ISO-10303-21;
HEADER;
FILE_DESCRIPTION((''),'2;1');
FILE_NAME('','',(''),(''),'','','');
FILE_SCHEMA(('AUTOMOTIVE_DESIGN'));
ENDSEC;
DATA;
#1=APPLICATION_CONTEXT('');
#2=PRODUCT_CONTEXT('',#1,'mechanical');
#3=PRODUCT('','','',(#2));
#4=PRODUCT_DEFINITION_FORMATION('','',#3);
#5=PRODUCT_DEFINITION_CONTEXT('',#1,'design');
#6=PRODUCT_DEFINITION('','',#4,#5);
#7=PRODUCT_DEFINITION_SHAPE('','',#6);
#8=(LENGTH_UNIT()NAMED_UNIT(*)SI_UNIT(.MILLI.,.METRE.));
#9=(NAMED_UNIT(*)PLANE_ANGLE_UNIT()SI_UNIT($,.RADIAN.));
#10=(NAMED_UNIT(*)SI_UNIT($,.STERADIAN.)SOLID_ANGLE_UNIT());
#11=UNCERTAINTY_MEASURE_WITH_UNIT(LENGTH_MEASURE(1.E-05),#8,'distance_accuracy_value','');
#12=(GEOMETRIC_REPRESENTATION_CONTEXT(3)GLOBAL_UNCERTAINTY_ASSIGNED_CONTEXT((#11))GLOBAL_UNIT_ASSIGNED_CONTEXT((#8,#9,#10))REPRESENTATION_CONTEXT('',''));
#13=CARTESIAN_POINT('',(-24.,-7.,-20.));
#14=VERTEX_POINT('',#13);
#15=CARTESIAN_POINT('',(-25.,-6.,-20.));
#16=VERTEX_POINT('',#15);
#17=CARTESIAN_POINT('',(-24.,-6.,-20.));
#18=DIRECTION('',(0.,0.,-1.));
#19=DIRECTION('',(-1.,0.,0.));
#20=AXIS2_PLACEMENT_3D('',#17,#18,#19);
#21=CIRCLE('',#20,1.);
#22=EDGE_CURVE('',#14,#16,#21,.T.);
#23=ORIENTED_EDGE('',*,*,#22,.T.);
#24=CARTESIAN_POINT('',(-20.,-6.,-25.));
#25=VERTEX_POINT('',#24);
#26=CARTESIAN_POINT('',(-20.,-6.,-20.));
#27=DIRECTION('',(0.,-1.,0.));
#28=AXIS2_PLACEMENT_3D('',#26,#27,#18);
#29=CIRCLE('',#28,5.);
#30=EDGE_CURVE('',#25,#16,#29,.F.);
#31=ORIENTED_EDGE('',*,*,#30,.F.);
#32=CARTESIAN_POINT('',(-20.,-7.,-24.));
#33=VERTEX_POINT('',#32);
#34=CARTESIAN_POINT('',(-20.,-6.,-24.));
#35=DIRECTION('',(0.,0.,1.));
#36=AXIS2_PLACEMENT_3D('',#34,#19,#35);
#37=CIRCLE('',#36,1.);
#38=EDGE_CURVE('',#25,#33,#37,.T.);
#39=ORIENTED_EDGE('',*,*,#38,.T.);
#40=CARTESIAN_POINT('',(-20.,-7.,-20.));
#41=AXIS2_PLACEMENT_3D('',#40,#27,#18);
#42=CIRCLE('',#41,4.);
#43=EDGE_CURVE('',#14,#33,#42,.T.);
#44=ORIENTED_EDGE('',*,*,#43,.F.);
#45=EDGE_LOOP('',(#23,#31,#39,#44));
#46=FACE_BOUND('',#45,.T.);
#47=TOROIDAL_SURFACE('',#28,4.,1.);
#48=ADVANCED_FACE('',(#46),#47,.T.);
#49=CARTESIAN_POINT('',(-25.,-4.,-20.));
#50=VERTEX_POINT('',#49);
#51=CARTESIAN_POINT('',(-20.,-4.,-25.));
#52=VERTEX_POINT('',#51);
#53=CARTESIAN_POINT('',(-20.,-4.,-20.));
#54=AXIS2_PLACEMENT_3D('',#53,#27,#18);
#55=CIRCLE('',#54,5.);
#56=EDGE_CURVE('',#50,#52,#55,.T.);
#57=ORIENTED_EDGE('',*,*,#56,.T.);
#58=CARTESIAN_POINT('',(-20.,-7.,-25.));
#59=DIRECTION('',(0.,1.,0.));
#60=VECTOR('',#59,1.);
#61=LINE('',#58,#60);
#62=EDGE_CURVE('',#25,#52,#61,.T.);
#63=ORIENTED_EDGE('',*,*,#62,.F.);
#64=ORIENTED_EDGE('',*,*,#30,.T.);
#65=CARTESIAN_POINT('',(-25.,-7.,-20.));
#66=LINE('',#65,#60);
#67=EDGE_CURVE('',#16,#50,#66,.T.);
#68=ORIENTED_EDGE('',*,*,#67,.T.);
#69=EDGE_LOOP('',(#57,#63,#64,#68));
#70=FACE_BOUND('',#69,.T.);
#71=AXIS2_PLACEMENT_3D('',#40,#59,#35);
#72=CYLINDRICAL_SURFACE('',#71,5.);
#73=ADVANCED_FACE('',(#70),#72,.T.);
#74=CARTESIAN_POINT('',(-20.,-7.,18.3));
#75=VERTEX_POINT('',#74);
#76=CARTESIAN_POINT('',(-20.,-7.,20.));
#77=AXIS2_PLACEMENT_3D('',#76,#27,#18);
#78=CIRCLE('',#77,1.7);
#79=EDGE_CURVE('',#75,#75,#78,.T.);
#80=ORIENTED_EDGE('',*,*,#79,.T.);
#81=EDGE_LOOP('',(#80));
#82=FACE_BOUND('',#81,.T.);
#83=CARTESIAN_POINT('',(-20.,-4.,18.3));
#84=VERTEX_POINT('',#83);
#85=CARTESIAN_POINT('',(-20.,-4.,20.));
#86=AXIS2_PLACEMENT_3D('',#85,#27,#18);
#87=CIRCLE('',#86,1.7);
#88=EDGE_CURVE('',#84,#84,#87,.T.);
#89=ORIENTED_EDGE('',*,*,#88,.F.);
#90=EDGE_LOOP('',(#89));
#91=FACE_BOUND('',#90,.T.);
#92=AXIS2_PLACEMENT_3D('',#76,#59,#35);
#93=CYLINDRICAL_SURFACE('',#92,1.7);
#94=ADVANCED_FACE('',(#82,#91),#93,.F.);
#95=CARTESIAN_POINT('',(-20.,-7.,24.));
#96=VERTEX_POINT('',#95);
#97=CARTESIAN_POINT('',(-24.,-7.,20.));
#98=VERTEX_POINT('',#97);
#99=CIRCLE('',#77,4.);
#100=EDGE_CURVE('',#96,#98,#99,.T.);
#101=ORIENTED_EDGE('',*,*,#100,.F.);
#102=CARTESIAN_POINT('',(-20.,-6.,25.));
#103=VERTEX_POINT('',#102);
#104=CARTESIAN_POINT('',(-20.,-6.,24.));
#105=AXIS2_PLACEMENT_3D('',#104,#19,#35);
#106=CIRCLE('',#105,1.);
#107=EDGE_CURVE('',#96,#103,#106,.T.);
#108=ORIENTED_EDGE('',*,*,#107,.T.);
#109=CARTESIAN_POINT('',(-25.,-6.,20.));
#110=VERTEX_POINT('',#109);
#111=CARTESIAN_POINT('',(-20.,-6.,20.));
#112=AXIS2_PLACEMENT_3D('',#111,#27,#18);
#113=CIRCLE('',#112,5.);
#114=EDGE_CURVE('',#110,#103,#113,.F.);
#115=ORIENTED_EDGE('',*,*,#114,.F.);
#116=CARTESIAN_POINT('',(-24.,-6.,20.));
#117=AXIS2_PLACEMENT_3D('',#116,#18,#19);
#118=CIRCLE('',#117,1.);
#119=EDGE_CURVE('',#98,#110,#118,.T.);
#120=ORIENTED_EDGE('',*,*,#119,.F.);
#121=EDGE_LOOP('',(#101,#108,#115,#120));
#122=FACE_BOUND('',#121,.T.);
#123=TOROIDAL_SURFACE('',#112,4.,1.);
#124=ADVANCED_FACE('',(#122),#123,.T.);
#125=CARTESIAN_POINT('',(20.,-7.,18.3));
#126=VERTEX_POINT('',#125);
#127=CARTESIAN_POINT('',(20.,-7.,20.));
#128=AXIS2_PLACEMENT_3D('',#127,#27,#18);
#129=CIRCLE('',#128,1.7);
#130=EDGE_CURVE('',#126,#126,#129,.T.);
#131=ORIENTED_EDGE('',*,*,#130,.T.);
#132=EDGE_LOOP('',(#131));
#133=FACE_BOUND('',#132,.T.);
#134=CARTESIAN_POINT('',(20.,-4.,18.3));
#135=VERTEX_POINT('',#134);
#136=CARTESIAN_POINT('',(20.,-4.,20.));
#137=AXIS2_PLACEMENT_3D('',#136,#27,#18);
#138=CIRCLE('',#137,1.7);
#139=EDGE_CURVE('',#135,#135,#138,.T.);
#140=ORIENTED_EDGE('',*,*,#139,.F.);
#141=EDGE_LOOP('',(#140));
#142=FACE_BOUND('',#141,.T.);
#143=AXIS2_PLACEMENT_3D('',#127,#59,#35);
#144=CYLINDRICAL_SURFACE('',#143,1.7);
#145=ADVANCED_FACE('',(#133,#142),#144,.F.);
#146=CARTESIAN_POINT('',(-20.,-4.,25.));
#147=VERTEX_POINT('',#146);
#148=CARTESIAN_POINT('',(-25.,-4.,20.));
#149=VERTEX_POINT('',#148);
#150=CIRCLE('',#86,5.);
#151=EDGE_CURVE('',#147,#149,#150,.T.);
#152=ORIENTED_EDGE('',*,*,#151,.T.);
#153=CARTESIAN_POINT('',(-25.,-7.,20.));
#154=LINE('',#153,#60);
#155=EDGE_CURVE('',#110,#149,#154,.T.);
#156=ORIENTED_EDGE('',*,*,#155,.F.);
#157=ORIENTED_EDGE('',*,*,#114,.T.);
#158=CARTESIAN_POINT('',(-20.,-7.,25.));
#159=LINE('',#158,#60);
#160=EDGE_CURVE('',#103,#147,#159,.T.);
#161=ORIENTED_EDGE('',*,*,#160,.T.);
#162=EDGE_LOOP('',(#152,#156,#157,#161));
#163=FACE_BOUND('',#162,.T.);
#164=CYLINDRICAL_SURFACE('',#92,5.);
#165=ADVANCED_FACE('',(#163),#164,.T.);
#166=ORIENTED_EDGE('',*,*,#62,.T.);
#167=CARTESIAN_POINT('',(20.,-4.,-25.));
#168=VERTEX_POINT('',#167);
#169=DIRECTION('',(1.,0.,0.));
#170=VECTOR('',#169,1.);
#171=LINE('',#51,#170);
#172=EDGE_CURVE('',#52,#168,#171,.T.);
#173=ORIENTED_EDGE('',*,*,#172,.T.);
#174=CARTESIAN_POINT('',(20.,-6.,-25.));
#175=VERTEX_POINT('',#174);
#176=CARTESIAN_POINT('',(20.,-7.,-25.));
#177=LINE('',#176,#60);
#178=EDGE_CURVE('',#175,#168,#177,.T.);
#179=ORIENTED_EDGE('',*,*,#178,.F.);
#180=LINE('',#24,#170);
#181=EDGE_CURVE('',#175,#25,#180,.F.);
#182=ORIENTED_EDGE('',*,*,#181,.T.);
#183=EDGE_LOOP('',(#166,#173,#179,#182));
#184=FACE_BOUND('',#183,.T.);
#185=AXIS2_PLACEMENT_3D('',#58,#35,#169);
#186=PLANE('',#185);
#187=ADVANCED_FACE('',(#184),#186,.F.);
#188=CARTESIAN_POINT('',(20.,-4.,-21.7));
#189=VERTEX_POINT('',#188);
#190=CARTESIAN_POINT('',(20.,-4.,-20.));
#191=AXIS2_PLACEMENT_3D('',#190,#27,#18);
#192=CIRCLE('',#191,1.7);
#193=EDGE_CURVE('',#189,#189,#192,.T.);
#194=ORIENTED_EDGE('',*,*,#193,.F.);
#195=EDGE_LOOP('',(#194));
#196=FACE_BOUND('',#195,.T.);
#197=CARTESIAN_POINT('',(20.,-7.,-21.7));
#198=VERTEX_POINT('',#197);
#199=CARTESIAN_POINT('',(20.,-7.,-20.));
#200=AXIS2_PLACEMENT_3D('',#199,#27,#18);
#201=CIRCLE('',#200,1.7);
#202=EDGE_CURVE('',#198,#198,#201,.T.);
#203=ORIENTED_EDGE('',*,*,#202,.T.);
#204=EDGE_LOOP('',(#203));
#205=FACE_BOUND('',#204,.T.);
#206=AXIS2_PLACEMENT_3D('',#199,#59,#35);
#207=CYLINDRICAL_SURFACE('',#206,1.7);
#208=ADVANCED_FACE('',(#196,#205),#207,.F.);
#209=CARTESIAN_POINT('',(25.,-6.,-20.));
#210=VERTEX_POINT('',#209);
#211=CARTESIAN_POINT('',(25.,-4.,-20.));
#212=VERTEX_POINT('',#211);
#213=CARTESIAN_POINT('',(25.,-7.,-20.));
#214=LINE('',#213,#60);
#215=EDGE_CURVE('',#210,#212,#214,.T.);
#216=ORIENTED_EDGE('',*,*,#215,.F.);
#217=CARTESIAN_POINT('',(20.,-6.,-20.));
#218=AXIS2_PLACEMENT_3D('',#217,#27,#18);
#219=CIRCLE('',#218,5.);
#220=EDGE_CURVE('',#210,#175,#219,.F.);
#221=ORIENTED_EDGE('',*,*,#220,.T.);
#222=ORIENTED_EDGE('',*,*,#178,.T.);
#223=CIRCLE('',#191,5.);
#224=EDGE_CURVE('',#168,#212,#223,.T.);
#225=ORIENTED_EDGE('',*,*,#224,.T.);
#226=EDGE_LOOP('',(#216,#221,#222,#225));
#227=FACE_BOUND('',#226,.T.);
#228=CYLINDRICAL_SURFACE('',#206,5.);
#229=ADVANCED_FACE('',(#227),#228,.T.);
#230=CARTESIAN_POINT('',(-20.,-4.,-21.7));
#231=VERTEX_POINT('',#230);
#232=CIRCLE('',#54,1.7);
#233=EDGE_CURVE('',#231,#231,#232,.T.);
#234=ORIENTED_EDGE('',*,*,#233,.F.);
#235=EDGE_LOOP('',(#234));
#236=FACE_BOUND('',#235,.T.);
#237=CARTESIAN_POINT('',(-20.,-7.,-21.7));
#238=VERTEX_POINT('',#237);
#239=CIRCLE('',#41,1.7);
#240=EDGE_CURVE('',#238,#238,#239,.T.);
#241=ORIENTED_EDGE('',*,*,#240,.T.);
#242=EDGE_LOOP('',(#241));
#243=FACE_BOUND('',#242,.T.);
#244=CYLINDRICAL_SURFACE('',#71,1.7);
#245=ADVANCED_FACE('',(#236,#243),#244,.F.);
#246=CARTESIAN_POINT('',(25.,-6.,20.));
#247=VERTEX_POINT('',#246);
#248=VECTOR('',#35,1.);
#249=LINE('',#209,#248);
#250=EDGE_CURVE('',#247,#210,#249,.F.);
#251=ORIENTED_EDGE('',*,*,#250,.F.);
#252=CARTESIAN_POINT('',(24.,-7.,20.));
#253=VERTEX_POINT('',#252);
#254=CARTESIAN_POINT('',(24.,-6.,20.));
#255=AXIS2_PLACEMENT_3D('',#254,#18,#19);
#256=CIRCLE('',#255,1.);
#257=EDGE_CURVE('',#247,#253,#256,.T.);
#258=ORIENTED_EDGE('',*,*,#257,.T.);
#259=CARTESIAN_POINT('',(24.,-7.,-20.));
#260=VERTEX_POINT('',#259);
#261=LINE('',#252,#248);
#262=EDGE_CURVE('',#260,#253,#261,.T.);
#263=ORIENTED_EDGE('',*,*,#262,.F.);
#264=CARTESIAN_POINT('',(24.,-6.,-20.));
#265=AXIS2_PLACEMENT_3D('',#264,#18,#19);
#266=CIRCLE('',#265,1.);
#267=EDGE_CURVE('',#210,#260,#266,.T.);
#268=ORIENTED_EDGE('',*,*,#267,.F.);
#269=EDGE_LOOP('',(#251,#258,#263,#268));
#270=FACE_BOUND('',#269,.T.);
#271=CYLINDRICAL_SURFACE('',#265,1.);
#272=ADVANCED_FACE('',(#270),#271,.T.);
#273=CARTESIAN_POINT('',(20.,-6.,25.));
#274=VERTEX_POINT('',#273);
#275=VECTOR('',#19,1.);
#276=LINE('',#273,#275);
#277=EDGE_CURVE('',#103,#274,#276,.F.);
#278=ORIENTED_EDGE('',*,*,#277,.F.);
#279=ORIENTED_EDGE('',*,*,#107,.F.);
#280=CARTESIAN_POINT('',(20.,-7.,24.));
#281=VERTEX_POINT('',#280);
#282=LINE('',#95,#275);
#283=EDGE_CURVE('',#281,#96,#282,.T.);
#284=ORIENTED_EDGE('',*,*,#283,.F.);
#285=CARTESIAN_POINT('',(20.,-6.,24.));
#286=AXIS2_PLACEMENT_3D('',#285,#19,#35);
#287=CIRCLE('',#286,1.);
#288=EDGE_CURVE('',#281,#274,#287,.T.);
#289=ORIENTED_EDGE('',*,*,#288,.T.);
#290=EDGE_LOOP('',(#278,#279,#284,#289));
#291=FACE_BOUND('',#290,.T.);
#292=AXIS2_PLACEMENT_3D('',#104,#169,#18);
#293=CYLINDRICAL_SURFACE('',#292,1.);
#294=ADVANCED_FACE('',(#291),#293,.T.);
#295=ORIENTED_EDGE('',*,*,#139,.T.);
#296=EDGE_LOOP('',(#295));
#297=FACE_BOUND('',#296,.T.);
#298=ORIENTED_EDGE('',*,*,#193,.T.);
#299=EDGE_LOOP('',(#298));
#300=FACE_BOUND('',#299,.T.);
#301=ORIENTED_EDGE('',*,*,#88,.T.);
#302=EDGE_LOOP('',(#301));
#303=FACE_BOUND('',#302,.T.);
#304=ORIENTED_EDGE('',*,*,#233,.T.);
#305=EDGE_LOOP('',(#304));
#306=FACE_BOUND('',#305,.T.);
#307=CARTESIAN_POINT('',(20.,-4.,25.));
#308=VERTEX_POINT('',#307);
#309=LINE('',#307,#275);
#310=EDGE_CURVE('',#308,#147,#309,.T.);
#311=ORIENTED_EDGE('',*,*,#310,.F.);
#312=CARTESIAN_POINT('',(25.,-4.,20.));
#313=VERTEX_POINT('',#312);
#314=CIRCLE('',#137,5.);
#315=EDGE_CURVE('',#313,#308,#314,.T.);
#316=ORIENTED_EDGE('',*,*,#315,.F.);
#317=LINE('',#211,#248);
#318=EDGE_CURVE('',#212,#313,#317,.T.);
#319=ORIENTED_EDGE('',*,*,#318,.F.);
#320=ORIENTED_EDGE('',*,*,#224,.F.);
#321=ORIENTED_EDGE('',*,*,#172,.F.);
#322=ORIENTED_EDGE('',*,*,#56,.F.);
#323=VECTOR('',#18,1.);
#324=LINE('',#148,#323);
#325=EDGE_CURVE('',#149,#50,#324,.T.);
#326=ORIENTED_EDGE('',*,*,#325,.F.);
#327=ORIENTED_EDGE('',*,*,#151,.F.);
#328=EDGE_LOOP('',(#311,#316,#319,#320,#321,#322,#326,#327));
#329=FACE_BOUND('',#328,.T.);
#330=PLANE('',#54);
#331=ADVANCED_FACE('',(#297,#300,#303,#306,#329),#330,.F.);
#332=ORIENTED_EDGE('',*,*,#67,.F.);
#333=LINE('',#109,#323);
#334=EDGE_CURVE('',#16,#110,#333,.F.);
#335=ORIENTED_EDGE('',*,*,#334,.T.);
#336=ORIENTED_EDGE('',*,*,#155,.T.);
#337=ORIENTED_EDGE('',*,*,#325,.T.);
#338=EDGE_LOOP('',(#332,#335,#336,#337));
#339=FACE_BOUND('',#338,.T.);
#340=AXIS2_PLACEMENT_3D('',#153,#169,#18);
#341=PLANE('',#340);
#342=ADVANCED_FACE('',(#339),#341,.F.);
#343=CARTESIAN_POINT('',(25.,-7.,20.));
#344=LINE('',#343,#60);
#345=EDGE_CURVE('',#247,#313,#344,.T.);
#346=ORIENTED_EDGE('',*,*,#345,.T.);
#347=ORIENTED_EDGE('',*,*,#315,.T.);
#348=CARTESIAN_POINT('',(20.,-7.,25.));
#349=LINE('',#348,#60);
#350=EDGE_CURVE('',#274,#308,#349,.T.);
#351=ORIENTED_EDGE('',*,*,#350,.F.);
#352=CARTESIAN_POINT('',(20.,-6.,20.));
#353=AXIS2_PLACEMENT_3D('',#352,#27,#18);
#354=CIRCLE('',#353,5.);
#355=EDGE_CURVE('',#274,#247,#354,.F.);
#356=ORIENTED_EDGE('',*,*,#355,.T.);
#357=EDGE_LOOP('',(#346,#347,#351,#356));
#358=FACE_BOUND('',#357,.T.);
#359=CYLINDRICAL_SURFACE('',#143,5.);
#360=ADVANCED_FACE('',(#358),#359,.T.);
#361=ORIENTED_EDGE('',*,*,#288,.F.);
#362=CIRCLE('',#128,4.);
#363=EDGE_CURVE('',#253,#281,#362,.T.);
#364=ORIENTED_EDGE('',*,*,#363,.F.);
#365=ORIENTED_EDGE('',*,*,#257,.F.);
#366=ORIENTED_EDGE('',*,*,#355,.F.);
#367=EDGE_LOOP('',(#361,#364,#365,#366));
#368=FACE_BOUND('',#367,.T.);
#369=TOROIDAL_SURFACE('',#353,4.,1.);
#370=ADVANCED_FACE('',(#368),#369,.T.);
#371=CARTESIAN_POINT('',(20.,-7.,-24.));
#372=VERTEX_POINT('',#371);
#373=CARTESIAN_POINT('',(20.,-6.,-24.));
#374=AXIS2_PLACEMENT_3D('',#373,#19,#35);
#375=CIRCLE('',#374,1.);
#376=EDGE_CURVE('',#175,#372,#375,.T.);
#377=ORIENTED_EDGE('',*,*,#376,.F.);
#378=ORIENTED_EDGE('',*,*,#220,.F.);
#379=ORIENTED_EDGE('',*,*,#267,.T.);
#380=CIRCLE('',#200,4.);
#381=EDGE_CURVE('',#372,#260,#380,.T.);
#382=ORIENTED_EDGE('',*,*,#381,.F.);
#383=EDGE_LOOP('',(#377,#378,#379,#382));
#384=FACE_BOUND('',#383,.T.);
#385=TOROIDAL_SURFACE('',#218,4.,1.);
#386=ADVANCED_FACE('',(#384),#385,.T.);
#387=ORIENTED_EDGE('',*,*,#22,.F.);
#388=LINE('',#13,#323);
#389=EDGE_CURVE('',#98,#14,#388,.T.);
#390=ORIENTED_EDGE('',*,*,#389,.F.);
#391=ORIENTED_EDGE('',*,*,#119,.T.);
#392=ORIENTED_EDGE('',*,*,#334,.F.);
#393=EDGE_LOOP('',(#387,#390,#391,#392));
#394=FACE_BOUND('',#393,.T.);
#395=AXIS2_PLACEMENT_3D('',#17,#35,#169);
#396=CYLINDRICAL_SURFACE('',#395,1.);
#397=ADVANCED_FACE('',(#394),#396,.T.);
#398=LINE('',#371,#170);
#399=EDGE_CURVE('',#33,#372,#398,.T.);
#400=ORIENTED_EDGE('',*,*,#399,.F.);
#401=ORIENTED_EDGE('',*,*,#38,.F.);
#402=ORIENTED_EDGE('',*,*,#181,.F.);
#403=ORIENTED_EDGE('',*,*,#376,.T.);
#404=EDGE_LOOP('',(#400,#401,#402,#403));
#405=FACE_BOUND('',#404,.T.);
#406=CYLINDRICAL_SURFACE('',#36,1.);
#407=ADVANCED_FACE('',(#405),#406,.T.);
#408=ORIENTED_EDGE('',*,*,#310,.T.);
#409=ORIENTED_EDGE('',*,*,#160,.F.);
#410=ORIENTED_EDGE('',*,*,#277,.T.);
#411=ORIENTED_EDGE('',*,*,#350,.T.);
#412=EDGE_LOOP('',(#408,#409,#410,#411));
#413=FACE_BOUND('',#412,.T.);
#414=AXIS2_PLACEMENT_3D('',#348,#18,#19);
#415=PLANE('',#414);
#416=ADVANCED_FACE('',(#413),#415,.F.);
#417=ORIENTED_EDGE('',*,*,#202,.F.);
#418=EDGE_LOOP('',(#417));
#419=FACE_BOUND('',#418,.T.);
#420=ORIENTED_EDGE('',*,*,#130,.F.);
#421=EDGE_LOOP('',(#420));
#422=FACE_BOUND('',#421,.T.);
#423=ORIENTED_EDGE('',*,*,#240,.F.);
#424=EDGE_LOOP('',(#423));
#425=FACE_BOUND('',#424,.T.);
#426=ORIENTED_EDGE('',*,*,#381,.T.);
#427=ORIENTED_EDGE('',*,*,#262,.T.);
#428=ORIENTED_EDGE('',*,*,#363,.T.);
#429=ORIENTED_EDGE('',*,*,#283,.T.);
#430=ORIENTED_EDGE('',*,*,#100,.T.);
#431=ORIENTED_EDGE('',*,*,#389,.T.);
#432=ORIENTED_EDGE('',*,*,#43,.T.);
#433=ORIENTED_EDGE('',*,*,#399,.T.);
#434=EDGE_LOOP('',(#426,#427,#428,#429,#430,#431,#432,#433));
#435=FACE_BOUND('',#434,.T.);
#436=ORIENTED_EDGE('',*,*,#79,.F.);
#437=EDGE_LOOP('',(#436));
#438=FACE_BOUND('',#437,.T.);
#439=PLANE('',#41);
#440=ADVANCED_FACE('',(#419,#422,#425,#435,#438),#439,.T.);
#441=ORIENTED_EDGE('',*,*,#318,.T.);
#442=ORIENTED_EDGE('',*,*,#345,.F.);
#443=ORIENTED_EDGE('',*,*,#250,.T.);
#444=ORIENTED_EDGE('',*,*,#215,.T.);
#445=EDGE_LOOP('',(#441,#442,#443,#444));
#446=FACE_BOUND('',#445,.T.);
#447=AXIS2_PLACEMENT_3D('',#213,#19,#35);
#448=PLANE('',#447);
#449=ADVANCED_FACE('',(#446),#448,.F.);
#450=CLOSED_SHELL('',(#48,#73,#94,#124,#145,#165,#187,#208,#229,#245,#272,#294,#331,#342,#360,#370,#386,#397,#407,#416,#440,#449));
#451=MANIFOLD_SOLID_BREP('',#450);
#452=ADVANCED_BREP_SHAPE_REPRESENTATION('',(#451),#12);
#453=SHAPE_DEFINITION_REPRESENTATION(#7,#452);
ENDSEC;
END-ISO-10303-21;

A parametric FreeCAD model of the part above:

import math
import FreeCAD as App
import Part
import Sketcher
Q = App.Units.Quantity


def edges_at(feature, points):
    """Names of the edges that pass closest to the given points."""
    edges = feature.Shape.Edges
    near = lambda p: min(range(len(edges)), key=lambda i: edges[i].distToShape(Part.Vertex(*p))[0])
    return sorted({f"Edge{near(p) + 1}" for p in points})

doc = App.newDocument("Part")
body = doc.addObject("PartDesign::Body", "Body")

# Sketch on XZ plane
sketch1 = body.newObject("Sketcher::SketchObject", "Sketch")
sketch1.AttachmentSupport = (doc.getObject("XZ_Plane"), [""])
sketch1.MapMode = "FlatFace"
sketch1.AttachmentOffset = App.Placement(App.Vector(0, 0, 4), App.Rotation())
sketch1.addGeometry([
    Part.LineSegment(App.Vector(-20, -25, 0), App.Vector(20, -25, 0)),  # 0
    Part.ArcOfCircle(Part.Circle(App.Vector(20, -20, 0), App.Vector(0, 0, 1), 5), math.radians(-90), math.radians(0)),  # 1
    Part.LineSegment(App.Vector(25, -20, 0), App.Vector(25, 20, 0)),  # 2
    Part.ArcOfCircle(Part.Circle(App.Vector(20, 20, 0), App.Vector(0, 0, 1), 5), math.radians(0), math.radians(90)),  # 3
    Part.LineSegment(App.Vector(20, 25, 0), App.Vector(-20, 25, 0)),  # 4
    Part.ArcOfCircle(Part.Circle(App.Vector(-20, 20, 0), App.Vector(0, 0, 1), 5), math.radians(90), math.radians(180)),  # 5
    Part.LineSegment(App.Vector(-25, 20, 0), App.Vector(-25, -20, 0)),  # 6
    Part.ArcOfCircle(Part.Circle(App.Vector(-20, -20, 0), App.Vector(0, 0, 1), 5), math.radians(180), math.radians(270)),  # 7
    Part.Circle(App.Vector(-20, -20, 0), App.Vector(0, 0, 1), 1.7),  # 8
    Part.Circle(App.Vector(20, -20, 0), App.Vector(0, 0, 1), 1.7),  # 9
    Part.Circle(App.Vector(-20, 20, 0), App.Vector(0, 0, 1), 1.7),  # 10
    Part.Circle(App.Vector(20, 20, 0), App.Vector(0, 0, 1), 1.7),  # 11
], False)
sketch1.addConstraint([
    Sketcher.Constraint("Tangent", 0, 2, 1, 1),
    Sketcher.Constraint("Tangent", 1, 2, 2, 1),
    Sketcher.Constraint("Tangent", 2, 2, 3, 1),
    Sketcher.Constraint("Tangent", 3, 2, 4, 1),
    Sketcher.Constraint("Tangent", 4, 2, 5, 1),
    Sketcher.Constraint("Tangent", 5, 2, 6, 1),
    Sketcher.Constraint("Tangent", 6, 2, 7, 1),
    Sketcher.Constraint("Tangent", 7, 2, 0, 1),
    Sketcher.Constraint("Horizontal", 0),
    Sketcher.Constraint("Vertical", 2),
    Sketcher.Constraint("Horizontal", 4),
    Sketcher.Constraint("Vertical", 6),
    Sketcher.Constraint("Coincident", 8, 3, 7, 3),
    Sketcher.Constraint("Coincident", 9, 3, 1, 3),
    Sketcher.Constraint("Coincident", 10, 3, 5, 3),
    Sketcher.Constraint("Coincident", 11, 3, 3, 3),
    Sketcher.Constraint("Equal", 1, 3),
    Sketcher.Constraint("Equal", 3, 5),
    Sketcher.Constraint("Equal", 5, 7),
    Sketcher.Constraint("Equal", 8, 9),
    Sketcher.Constraint("Equal", 9, 10),
    Sketcher.Constraint("Equal", 10, 11),
    Sketcher.Constraint("Symmetric", 1, 3, 5, 3, -1, 1),
    Sketcher.Constraint("Equal", 4, 2),
    Sketcher.Constraint("Radius", 1, Q("5 mm")),
    Sketcher.Constraint("Diameter", 8, Q("3.4 mm")),
    Sketcher.Constraint("DistanceX", 0, 1, 0, 2, Q("40 mm")),
])
pad1 = body.newObject("PartDesign::Pad", "Pad")
pad1.Profile = sketch1
pad1.Length = 3
doc.recompute()

fillet = body.newObject("PartDesign::Fillet", "Fillet")
fillet.Base = (pad1, edges_at(pad1, [
    (23.536, -7, -23.536),
    (25, -7, 0),
    (23.536, -7, 23.536),
    (0, -7, 25),
    (-23.536, -7, 23.536),
    (-25, -7, 0),
    (-23.536, -7, -23.536),
    (0, -7, -25),
]))
fillet.Radius = 1

doc.recompute()
